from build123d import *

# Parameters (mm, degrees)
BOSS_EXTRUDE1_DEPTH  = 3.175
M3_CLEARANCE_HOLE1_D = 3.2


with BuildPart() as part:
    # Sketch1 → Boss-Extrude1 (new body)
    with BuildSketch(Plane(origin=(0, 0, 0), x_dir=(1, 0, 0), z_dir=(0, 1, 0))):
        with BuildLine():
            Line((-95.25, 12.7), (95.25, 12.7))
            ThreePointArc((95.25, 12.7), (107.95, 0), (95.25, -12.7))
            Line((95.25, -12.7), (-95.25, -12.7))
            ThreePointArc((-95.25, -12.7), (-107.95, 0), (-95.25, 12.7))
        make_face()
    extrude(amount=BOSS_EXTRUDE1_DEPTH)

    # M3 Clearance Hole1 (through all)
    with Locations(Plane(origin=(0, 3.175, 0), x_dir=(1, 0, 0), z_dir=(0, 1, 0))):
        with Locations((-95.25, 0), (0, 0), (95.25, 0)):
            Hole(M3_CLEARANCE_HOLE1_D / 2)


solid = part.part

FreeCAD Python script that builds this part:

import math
import FreeCAD as App
import Part
import Sketcher

V = App.Vector
Q = App.Units.Quantity

doc = App.newDocument("Part")
body = doc.addObject("PartDesign::Body", "Body")

sketch1 = body.newObject("Sketcher::SketchObject", "Sketch")
sketch1.AttachmentSupport = (doc.getObject("XZ_Plane"), [""])
sketch1.MapMode = "FlatFace"
sketch1.addGeometry([
    Part.LineSegment(V(95, -13, 0), V(-95, -13, 0)),
    Part.ArcOfCircle(Part.Circle(V(-95, 0, 0), V(0, 0, 1), 13), math.radians(90), math.radians(270)),
    Part.LineSegment(V(-95, 13, 0), V(95, 13, 0)),
    Part.ArcOfCircle(Part.Circle(V(95, 0, 0), V(0, 0, 1), 13), math.radians(-90), math.radians(90)),
], False)
sketch1.addConstraint([
    Sketcher.Constraint("Tangent", 0, 2, 1, 2),
    Sketcher.Constraint("Tangent", 1, 1, 2, 1),
    Sketcher.Constraint("Tangent", 2, 2, 3, 2),
    Sketcher.Constraint("Tangent", 3, 1, 0, 1),
    Sketcher.Constraint("Horizontal", 0),
    Sketcher.Constraint("Horizontal", 2),
    Sketcher.Constraint("Symmetric", 1, 3, 3, 3, -1, 1),
    Sketcher.Constraint("Radius", 1, Q("0.5 in")),
    Sketcher.Constraint("DistanceX", 0, 2, 0, 1, Q("7.5 in")),
])
pad1 = body.newObject("PartDesign::Pad", "Pad")
pad1.Profile = sketch1
pad1.Length = Q("0.125 in")
pad1.Reversed = True

sketch2 = body.newObject("Sketcher::SketchObject", "Sketch001")
sketch2.AttachmentSupport = (doc.getObject("XZ_Plane"), [""])
sketch2.MapMode = "FlatFace"
sketch2.AttachmentOffset = App.Placement(V(0, 0, -0.125 * 25.4), App.Rotation())
sketch2.addGeometry([
    Part.Circle(V(-95.2, 0, 0), V(0, 0, 1), 1.6),
    Part.Circle(V(0, 0, 0), V(0, 0, 1), 1.6),
    Part.Circle(V(95.2, 0, 0), V(0, 0, 1), 1.6),
], False)
sketch2.addConstraint([
    Sketcher.Constraint("Coincident", 1, 3, -1, 1),
    Sketcher.Constraint("Equal", 0, 1),
    Sketcher.Constraint("Equal", 1, 2),
    Sketcher.Constraint("Symmetric", 0, 3, 2, 3, -1, 1),
    Sketcher.Constraint("PointOnObject", 0, 3, -1),
    Sketcher.Constraint("DistanceX", 0, 3, 2, 3, Q("7.5 in")),
    Sketcher.Constraint("Diameter", 0, Q("3.2 mm")),
])
doc.recompute()
hole = body.newObject("PartDesign::Hole", "Hole")
hole.Profile = sketch2
hole.ThreadType = "None"
hole.Diameter = 3.2
hole.DepthType = "ThroughAll"
hole.Reversed = True

doc.recompute()
